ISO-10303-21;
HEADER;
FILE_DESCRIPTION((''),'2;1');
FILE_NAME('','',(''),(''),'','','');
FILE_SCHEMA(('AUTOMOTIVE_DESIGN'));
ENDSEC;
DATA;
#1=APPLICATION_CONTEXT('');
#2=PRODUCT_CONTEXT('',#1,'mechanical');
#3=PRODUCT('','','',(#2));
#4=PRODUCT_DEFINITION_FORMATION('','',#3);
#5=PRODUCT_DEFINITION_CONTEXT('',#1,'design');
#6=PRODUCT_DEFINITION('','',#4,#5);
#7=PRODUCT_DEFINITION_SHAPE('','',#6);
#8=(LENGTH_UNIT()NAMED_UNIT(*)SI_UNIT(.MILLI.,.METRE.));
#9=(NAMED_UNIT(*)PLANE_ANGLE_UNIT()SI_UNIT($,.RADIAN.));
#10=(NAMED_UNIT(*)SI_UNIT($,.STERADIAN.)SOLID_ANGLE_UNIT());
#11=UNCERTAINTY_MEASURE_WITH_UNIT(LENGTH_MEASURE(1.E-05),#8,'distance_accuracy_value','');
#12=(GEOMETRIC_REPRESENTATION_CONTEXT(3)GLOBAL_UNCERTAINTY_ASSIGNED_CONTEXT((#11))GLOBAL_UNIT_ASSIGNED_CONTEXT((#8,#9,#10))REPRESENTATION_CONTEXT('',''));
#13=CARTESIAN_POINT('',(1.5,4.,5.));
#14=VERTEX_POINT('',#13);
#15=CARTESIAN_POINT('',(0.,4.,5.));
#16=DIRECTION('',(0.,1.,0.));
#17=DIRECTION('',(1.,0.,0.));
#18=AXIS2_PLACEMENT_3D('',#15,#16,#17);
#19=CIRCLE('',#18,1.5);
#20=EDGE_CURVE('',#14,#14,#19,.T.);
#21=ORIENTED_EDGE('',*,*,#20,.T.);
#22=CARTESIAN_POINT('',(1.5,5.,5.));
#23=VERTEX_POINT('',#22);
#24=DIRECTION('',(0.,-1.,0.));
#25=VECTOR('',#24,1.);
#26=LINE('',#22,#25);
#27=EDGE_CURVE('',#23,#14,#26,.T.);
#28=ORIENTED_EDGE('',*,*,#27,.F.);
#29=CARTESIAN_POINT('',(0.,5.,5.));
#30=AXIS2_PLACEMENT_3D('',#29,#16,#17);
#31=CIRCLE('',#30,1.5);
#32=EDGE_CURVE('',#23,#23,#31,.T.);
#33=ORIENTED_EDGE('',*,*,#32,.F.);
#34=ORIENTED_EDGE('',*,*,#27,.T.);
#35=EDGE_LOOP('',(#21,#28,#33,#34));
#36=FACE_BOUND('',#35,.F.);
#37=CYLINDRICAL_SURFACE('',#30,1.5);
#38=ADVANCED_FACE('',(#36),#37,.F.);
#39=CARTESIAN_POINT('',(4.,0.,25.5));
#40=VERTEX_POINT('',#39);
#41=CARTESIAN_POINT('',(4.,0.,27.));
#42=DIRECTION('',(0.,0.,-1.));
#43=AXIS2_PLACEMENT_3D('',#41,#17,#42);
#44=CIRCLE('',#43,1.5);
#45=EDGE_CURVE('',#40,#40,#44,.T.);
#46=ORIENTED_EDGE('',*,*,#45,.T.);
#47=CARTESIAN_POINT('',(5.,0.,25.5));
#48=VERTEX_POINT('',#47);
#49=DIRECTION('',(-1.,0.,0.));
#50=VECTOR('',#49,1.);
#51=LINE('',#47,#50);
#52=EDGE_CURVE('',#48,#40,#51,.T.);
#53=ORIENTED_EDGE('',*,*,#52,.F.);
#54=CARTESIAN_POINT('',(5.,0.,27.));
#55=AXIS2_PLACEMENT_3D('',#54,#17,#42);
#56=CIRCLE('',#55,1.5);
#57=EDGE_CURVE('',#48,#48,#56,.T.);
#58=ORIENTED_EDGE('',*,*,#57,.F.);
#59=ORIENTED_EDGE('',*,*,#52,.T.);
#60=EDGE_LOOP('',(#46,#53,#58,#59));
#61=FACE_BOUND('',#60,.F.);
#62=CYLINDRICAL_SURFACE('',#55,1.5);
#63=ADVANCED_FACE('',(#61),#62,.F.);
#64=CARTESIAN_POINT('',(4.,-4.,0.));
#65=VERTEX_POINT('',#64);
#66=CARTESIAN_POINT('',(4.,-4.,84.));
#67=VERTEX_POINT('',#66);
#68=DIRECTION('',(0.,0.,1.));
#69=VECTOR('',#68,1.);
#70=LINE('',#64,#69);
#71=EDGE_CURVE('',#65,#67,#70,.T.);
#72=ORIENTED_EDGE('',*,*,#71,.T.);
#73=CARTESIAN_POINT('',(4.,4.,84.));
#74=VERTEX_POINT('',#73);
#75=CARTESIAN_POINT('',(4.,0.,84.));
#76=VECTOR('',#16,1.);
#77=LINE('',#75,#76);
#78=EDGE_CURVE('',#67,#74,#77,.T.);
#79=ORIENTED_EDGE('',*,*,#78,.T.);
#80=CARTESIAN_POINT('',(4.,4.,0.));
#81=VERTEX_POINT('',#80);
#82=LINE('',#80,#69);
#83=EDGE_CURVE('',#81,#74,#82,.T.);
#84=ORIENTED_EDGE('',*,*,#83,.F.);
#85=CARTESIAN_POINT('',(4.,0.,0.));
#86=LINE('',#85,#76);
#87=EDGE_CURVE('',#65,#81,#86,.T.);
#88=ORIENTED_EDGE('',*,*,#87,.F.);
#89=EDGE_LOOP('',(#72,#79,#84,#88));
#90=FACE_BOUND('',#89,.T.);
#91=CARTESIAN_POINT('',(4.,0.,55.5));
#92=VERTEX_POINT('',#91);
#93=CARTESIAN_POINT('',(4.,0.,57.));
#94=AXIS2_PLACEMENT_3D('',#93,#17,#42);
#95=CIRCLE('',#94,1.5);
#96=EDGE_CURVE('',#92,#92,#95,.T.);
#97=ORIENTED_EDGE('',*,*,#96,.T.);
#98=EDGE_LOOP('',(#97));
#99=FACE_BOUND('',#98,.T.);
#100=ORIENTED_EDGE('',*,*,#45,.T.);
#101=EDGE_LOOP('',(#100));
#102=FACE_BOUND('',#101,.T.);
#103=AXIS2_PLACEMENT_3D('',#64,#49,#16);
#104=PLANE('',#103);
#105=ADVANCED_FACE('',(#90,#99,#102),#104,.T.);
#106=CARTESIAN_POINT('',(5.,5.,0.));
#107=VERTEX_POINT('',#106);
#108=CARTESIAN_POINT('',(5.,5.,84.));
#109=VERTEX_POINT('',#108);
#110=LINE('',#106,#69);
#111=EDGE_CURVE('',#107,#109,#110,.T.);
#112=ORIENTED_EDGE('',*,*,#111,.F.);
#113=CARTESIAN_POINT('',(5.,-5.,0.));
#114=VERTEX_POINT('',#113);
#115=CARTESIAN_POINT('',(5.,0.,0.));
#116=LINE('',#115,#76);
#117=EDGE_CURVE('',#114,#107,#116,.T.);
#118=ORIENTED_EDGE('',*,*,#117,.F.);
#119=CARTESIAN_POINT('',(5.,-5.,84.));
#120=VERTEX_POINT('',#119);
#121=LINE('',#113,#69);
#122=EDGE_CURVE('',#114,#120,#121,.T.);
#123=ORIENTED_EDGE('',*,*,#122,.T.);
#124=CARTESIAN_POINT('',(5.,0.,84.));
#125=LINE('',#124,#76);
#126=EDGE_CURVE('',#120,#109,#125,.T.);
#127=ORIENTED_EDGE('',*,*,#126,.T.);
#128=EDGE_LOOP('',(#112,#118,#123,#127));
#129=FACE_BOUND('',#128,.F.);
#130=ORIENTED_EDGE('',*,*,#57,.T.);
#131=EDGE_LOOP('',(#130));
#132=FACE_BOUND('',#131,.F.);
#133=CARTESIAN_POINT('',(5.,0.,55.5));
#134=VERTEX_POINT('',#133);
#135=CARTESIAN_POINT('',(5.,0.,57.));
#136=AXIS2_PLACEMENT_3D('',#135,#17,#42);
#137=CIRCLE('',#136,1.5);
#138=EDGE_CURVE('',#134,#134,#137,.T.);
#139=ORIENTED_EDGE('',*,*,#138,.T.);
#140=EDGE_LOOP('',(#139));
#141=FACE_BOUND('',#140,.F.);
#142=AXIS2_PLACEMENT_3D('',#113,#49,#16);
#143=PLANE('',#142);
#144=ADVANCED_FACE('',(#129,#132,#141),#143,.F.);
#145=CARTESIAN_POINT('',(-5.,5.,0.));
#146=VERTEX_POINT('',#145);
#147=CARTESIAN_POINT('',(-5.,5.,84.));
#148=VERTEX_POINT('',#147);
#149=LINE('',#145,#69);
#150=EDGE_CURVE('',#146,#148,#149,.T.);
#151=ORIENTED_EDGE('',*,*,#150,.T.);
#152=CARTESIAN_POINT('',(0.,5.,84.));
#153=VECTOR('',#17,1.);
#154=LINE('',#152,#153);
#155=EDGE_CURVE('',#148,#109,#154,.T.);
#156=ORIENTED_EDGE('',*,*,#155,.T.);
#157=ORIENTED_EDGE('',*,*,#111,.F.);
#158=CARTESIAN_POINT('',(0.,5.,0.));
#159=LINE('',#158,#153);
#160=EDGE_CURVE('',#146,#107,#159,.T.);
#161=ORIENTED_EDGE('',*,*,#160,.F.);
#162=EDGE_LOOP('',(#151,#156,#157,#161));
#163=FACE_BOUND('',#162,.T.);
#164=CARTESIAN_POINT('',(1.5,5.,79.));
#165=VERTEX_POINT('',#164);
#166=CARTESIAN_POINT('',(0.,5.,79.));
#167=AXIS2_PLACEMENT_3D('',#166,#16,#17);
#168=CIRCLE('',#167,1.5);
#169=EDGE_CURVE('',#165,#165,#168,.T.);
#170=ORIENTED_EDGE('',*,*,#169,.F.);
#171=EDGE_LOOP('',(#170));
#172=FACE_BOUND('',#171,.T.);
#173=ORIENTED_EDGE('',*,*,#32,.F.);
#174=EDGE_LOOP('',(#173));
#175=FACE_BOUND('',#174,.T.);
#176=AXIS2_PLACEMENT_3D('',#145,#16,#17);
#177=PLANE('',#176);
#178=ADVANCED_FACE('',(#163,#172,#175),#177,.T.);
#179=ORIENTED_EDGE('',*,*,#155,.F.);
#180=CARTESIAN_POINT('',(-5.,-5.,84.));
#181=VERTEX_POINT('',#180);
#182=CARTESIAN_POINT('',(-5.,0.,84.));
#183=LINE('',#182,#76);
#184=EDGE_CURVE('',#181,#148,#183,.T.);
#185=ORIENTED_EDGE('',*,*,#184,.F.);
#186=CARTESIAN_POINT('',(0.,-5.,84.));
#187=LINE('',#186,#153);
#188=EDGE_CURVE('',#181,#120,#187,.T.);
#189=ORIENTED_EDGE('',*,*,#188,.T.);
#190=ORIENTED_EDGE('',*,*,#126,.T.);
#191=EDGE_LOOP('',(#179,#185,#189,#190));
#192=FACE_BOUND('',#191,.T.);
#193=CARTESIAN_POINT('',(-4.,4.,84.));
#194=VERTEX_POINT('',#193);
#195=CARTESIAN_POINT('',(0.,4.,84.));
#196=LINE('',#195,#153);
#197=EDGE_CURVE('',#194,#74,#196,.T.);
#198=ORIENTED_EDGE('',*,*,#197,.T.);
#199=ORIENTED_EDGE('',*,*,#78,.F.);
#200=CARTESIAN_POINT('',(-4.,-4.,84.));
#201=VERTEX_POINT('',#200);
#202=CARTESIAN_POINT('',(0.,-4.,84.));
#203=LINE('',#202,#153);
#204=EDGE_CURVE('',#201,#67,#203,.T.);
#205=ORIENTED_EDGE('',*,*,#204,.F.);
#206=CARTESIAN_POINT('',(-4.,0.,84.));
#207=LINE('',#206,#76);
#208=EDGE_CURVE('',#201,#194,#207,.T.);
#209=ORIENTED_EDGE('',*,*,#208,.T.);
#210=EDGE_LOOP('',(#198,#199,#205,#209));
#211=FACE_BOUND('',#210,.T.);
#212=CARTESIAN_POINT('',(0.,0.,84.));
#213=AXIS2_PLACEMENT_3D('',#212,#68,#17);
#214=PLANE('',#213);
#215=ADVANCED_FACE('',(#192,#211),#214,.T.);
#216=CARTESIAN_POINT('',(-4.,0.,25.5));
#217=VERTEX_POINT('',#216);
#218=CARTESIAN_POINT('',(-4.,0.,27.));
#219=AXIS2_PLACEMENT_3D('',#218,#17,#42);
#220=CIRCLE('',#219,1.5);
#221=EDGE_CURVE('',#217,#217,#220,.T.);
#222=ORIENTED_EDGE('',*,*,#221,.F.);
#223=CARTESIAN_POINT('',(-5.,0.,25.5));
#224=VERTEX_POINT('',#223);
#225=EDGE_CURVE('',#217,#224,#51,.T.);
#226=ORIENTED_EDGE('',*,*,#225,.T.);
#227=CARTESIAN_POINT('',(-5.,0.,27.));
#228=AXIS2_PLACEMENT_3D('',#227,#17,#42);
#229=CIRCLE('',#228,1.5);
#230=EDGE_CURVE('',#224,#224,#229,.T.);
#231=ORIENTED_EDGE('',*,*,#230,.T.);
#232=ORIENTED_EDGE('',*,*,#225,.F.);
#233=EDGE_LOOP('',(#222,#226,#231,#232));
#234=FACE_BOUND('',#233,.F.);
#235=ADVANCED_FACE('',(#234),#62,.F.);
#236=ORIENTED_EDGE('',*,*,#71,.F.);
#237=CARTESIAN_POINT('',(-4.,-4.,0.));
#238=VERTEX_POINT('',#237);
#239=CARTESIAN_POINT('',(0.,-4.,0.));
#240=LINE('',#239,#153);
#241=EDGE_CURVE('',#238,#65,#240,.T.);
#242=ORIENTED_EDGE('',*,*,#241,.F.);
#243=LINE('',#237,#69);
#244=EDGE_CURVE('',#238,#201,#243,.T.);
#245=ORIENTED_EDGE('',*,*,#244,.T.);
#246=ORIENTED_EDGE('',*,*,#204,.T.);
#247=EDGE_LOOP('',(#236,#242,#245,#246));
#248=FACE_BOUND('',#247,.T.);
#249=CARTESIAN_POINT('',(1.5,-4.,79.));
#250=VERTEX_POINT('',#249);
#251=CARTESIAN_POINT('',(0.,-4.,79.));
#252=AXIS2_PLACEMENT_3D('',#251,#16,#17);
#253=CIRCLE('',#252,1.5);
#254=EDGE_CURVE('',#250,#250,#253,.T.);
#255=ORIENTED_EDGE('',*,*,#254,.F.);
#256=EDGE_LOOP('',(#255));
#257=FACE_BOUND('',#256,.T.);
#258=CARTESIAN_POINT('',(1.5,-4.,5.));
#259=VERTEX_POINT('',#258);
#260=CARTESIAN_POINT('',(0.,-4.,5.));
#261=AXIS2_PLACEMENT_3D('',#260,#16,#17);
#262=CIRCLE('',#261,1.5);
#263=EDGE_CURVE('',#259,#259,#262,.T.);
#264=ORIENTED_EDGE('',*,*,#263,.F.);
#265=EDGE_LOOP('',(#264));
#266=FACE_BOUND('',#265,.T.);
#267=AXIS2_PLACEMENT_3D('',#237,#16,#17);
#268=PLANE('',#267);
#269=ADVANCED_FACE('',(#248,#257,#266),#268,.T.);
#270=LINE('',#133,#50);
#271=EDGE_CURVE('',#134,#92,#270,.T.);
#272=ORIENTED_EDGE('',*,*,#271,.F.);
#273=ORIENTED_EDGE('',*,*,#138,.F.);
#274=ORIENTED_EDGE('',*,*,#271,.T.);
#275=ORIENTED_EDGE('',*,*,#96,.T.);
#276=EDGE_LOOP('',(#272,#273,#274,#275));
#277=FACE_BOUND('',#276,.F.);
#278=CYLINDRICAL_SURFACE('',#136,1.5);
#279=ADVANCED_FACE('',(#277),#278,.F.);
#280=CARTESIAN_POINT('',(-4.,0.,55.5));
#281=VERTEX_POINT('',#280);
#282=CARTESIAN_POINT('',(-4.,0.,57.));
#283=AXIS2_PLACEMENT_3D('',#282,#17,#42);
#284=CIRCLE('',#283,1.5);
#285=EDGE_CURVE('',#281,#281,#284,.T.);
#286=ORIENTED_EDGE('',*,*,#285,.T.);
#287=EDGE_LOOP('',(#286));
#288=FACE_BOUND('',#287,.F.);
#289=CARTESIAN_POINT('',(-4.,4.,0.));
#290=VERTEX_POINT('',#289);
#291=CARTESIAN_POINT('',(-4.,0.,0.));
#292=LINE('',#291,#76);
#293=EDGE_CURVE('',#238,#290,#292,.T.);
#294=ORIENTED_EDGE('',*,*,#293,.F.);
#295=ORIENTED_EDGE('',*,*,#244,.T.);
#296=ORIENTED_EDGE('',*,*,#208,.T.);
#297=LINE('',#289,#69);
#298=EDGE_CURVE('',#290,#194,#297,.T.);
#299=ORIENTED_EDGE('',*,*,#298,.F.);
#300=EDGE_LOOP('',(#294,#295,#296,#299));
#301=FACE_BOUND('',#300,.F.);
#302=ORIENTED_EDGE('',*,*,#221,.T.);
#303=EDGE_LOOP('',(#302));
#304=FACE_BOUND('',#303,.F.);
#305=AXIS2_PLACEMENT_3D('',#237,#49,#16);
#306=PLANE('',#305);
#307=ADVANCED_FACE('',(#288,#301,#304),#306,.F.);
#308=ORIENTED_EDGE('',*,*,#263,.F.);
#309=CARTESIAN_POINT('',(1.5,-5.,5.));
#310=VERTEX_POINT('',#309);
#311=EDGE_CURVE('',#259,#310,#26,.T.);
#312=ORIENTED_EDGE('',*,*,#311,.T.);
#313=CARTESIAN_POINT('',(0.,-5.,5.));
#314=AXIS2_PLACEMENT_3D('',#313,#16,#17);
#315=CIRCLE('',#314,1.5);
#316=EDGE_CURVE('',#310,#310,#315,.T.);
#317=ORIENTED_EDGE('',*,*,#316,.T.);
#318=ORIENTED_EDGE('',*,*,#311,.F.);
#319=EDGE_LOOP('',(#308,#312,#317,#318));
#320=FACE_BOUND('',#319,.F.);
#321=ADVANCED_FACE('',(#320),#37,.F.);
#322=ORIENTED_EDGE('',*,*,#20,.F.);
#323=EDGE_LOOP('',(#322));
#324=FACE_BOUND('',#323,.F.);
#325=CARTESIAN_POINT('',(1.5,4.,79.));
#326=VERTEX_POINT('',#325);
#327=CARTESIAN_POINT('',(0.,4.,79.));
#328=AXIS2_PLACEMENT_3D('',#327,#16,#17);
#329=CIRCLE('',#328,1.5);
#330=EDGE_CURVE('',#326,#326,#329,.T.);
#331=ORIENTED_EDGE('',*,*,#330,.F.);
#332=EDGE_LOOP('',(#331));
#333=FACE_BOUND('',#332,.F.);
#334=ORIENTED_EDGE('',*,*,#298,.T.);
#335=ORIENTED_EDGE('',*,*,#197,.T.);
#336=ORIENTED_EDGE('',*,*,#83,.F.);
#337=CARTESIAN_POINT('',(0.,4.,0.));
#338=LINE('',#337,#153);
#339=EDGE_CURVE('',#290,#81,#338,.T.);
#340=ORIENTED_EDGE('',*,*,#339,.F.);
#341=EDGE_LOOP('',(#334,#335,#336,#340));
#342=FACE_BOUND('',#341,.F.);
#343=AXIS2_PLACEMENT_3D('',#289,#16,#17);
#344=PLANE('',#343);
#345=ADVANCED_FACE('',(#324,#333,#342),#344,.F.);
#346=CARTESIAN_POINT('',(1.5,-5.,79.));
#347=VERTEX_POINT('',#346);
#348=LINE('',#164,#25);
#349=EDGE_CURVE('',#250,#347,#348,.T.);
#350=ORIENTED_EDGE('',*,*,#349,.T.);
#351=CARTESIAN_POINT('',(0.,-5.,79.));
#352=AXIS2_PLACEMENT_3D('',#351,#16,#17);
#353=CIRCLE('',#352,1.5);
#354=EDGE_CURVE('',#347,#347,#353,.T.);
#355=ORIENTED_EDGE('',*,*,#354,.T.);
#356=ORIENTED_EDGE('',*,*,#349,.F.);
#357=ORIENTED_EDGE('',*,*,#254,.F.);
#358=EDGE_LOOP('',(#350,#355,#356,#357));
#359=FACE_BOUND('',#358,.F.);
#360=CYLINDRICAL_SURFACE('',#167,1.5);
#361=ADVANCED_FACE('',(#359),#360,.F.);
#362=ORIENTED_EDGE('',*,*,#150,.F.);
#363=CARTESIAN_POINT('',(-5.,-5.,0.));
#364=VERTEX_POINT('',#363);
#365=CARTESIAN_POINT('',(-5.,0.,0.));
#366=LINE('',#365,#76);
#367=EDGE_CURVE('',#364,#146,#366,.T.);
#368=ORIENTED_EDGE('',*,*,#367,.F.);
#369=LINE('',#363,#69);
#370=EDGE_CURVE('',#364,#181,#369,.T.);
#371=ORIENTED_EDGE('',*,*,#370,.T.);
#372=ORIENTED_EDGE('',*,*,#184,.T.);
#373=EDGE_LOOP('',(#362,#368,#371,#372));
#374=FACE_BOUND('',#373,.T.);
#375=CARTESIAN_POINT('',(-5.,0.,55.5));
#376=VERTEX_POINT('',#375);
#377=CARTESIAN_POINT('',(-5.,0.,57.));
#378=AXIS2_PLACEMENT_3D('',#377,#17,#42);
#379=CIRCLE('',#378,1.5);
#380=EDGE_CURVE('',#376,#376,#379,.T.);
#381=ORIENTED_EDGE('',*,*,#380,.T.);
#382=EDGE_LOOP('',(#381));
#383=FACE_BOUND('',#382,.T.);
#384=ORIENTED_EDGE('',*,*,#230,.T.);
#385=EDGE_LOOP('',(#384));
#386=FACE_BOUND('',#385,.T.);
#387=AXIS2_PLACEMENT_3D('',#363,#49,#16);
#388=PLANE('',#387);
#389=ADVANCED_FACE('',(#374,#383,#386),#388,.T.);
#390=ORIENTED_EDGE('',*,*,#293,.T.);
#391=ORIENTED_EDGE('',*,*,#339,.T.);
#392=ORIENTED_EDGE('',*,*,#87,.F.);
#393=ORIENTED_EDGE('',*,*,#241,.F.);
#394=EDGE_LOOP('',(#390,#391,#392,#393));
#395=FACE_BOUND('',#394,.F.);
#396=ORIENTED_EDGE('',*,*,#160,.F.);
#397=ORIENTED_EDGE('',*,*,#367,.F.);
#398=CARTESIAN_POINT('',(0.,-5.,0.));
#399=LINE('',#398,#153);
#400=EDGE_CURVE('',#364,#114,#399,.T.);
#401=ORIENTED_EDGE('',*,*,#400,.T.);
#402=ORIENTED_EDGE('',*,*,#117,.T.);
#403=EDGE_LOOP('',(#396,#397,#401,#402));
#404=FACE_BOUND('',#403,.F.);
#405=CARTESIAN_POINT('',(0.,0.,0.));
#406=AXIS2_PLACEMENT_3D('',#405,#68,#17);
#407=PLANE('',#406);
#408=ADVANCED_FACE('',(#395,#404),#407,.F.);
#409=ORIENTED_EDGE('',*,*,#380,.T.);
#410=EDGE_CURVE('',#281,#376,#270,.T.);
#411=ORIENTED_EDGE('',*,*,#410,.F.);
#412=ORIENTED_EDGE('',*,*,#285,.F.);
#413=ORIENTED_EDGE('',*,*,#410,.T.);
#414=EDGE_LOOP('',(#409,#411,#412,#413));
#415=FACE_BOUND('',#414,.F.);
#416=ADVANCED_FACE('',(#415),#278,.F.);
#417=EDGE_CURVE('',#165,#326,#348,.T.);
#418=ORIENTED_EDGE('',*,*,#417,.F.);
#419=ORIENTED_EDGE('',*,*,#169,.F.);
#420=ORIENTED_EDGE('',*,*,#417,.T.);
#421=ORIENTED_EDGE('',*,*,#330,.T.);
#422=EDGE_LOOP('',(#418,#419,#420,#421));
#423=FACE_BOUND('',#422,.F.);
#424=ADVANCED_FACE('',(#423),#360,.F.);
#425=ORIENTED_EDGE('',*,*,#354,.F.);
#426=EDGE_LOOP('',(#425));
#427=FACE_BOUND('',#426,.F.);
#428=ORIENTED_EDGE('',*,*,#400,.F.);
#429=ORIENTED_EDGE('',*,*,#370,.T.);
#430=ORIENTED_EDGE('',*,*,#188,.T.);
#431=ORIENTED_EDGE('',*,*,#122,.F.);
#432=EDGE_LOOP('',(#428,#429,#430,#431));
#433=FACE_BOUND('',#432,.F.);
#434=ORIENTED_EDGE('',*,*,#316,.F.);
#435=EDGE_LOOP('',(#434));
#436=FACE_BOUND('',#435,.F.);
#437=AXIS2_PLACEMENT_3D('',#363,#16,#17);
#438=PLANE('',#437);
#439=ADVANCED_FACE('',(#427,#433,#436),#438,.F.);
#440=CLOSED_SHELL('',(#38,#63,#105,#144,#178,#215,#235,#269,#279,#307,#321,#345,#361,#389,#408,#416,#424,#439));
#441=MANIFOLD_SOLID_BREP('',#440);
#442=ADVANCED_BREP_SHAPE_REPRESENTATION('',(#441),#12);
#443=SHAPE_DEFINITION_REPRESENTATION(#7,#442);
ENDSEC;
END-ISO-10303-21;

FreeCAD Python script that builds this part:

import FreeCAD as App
import Part
import Sketcher

V = App.Vector
Q = App.Units.Quantity


def add_polygon(sketch, points):
    """Adds a closed chain of lines whose ends are joined by coincident constraints."""
    first, n = sketch.GeometryCount, len(points)
    for a, b in zip(points, points[1:] + points[:1]):
        sketch.addGeometry(Part.LineSegment(App.Vector(*a, 0), App.Vector(*b, 0)), False)
    for i in range(n):
        sketch.addConstraint(Sketcher.Constraint("Coincident", first + i, 2, first + (i + 1) % n, 1))

doc = App.newDocument("Part")
body = doc.addObject("PartDesign::Body", "Body")

sketch1 = body.newObject("Sketcher::SketchObject", "Sketch")
sketch1.AttachmentSupport = (doc.getObject("XY_Plane"), [""])
sketch1.MapMode = "FlatFace"
add_polygon(sketch1, [(-5, 5), (-5, -5), (5, -5), (5, 5)])
add_polygon(sketch1, [(4, -4), (-4, -4), (-4, 4), (4, 4)])
sketch1.addConstraint([
    Sketcher.Constraint("Vertical", 0),
    Sketcher.Constraint("Horizontal", 1),
    Sketcher.Constraint("Vertical", 2),
    Sketcher.Constraint("Horizontal", 3),
    Sketcher.Constraint("Horizontal", 4),
    Sketcher.Constraint("Vertical", 5),
    Sketcher.Constraint("Horizontal", 6),
    Sketcher.Constraint("Vertical", 7),
    Sketcher.Constraint("Symmetric", 0, 2, 2, 2, -1, 1),
    Sketcher.Constraint("Symmetric", 4, 2, 6, 2, -1, 1),
    Sketcher.Constraint("Equal", 3, 0),
    Sketcher.Constraint("Equal", 6, 5),
    Sketcher.Constraint("DistanceX", 1, 1, 1, 2, Q("10 mm")),
    Sketcher.Constraint("DistanceX", 4, 2, 4, 1, Q("8 mm")),
])
pad1 = body.newObject("PartDesign::Pad", "Pad")
pad1.Profile = sketch1
pad1.Length = 84

sketch2 = body.newObject("Sketcher::SketchObject", "Sketch001")
sketch2.AttachmentSupport = (doc.getObject("YZ_Plane"), [""])
sketch2.MapMode = "FlatFace"
sketch2.AttachmentOffset = App.Placement(V(0, 0, 5), App.Rotation())
sketch2.addGeometry([
    Part.Circle(V(0, 57, 0), V(0, 0, 1), 1.5),
    Part.Circle(V(0, 27, 0), V(0, 0, 1), 1.5),
], False)
sketch2.addConstraint([
    Sketcher.Constraint("Equal", 0, 1),
    Sketcher.Constraint("PointOnObject", 0, 3, -2),
    Sketcher.Constraint("PointOnObject", 1, 3, -2),
    Sketcher.Constraint("Diameter", 0, Q("3 mm")),
    Sketcher.Constraint("DistanceY", -1, 1, 0, 3, Q("57 mm")),
    Sketcher.Constraint("DistanceY", -1, 1, 1, 3, Q("27 mm")),
])
pocket1 = body.newObject("PartDesign::Pocket", "Pocket")
pocket1.Profile = sketch2
pocket1.Type = "ThroughAll"

sketch3 = body.newObject("Sketcher::SketchObject", "Sketch002")
sketch3.AttachmentSupport = (doc.getObject("XZ_Plane"), [""])
sketch3.MapMode = "FlatFace"
sketch3.AttachmentOffset = App.Placement(V(0, 0, -5), App.Rotation())
sketch3.addGeometry([
    Part.Circle(V(0, 5, 0), V(0, 0, 1), 1.5),
    Part.Circle(V(0, 79, 0), V(0, 0, 1), 1.5),
], False)
sketch3.addConstraint([
    Sketcher.Constraint("Equal", 0, 1),
    Sketcher.Constraint("PointOnObject", 0, 3, -2),
    Sketcher.Constraint("PointOnObject", 1, 3, -2),
    Sketcher.Constraint("Diameter", 0, Q("3 mm")),
    Sketcher.Constraint("DistanceY", -1, 1, 0, 3, Q("5 mm")),
    Sketcher.Constraint("DistanceY", -1, 1, 1, 3, Q("79 mm")),
])
pocket2 = body.newObject("PartDesign::Pocket", "Pocket001")
pocket2.Profile = sketch3
pocket2.Length = 10
pocket2.Reversed = True

doc.recompute()
